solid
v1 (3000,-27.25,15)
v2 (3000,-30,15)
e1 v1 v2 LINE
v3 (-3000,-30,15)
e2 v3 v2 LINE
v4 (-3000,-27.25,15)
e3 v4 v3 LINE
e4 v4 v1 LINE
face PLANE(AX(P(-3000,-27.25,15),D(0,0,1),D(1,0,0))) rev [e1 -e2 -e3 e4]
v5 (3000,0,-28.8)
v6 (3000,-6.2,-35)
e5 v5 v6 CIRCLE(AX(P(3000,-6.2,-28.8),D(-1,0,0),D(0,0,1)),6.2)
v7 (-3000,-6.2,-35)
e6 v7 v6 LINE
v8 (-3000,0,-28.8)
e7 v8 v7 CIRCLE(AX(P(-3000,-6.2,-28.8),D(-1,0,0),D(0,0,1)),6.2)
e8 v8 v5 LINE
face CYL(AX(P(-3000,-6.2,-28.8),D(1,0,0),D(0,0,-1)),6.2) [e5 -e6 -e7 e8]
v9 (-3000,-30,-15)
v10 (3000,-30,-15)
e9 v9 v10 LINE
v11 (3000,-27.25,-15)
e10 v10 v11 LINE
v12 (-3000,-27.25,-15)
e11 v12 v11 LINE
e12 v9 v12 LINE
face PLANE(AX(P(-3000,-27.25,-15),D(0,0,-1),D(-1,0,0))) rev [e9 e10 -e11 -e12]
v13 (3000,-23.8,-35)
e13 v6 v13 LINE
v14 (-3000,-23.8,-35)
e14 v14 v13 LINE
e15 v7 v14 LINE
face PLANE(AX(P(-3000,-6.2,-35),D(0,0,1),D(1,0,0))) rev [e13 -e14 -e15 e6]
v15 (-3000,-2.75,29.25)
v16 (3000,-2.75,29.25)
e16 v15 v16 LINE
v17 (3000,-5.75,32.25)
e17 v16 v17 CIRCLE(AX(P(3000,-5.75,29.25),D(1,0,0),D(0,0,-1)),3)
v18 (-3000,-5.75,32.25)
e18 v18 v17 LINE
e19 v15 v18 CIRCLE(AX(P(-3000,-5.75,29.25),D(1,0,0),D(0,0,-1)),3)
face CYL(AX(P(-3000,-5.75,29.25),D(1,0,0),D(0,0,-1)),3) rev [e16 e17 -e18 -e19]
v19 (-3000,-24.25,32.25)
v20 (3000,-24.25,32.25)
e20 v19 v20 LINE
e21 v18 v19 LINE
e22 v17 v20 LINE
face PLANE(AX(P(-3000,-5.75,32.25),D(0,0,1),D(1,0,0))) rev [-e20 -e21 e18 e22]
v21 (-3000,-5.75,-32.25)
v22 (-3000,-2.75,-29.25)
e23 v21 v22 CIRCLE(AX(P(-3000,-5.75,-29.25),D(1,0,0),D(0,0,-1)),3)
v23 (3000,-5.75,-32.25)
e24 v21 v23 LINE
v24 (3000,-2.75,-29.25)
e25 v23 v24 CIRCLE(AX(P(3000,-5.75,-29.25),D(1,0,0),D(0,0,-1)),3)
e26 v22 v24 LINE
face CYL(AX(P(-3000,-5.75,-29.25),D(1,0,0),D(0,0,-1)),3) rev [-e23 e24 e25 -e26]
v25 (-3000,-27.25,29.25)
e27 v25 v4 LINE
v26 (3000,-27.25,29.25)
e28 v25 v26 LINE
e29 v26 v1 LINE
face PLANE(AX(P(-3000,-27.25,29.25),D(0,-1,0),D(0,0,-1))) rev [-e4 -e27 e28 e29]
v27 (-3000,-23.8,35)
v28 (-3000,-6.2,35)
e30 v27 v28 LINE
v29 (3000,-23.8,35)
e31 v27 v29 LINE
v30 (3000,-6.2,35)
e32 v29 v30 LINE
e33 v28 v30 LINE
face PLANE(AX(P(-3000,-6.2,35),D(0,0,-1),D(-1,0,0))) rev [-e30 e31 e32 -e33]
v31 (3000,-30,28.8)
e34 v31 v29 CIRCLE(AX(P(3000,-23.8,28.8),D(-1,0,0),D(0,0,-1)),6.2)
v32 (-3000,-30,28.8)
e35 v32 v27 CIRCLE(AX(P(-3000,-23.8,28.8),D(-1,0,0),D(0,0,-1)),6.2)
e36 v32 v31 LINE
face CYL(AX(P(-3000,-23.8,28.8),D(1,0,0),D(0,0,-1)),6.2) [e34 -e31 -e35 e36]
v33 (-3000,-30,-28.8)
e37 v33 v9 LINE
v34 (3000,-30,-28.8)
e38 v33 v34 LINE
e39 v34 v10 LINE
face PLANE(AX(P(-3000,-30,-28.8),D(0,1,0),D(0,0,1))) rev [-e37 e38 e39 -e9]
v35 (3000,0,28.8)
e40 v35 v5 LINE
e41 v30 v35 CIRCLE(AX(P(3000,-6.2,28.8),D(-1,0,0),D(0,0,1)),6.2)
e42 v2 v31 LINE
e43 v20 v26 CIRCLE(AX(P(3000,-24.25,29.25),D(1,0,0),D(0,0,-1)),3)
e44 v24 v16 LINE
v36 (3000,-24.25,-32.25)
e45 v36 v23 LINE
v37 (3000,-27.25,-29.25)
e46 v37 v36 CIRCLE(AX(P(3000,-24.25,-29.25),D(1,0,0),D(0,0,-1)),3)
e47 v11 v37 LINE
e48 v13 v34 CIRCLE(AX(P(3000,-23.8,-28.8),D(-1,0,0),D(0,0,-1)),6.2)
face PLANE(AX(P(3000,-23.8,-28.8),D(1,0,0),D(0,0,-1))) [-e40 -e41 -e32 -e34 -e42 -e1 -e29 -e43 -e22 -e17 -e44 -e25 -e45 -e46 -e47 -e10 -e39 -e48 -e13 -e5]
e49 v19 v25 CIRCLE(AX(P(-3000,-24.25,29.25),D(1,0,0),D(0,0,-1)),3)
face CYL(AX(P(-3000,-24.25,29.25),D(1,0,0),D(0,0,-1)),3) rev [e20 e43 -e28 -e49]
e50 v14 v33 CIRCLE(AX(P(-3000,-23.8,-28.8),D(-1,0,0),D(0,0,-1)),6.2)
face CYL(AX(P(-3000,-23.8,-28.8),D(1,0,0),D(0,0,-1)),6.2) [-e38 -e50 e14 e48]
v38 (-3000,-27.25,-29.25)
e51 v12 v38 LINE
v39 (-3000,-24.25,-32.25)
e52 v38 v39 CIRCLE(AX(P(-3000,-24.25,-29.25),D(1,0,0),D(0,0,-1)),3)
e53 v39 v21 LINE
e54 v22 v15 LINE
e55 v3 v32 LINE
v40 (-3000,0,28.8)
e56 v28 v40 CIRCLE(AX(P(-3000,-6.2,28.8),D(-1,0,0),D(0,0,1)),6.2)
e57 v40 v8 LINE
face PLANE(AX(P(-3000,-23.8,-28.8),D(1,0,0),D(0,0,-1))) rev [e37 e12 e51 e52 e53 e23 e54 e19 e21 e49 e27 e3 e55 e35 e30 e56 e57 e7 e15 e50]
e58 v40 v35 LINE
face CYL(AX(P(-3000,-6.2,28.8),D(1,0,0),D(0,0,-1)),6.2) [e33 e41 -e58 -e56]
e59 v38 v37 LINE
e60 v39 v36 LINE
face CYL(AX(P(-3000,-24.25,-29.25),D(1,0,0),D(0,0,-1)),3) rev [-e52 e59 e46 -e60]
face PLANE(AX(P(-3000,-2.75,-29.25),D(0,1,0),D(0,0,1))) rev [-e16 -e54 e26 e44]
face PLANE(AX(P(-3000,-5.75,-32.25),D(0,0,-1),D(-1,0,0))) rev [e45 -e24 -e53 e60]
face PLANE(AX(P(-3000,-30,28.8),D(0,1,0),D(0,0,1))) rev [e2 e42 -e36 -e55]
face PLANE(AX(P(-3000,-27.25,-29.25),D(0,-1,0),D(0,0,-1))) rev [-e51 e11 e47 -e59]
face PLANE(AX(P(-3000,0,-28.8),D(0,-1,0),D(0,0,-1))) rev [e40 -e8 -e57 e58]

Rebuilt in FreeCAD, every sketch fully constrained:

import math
import FreeCAD as App
import Part
import Sketcher

doc = App.newDocument("Part")
params = doc.addObject("Spreadsheet::Sheet", "Params")
for row, (alias, value) in enumerate([
    ("sketch1_radius", "3 mm"),
    ("sketch1_radius2", "6.2 mm"),
    ("sketch1_width", "17.6 mm"),
    ("sketch1_width2", "18.5 mm"),
    ("sketch1_height", "57.6 mm"),
    ("pad1_length", "6000 mm"),
], start=1):
    params.set(f"A{row}", alias)
    params.set(f"B{row}", "=" + value)
    params.setAlias(f"B{row}", alias)

body = doc.addObject("PartDesign::Body", "Body")

# Sketch on YZ plane
sketch1 = body.newObject("Sketcher::SketchObject", "Sketch")
sketch1.AttachmentSupport = (doc.getObject("YZ_Plane"), [""])
sketch1.MapMode = "FlatFace"
sketch1.AttachmentOffset = App.Placement(App.Vector(0, 0, 3000), App.Rotation())
sketch1.addGeometry(Part.LineSegment(App.Vector(0, 28.8, 0), App.Vector(0, -28.8, 0)), False)
sketch1.addGeometry(Part.ArcOfCircle(Part.Circle(App.Vector(-6.2, -28.8, 0), App.Vector(0, 0, 1), 6.2), math.radians(-90), math.radians(0)), False)
sketch1.addGeometry(Part.LineSegment(App.Vector(-6.2, -35, 0), App.Vector(-23.8, -35, 0)), False)
sketch1.addGeometry(Part.ArcOfCircle(Part.Circle(App.Vector(-23.8, -28.8, 0), App.Vector(0, 0, 1), 6.2), math.radians(-180), math.radians(-90)), False)
sketch1.addGeometry(Part.LineSegment(App.Vector(-30, -28.8, 0), App.Vector(-30, -15, 0)), False)
sketch1.addGeometry(Part.LineSegment(App.Vector(-30, -15, 0), App.Vector(-27.2, -15, 0)), False)
sketch1.addGeometry(Part.LineSegment(App.Vector(-27.2, -15, 0), App.Vector(-27.2, -29.2, 0)), False)
sketch1.addGeometry(Part.ArcOfCircle(Part.Circle(App.Vector(-24.3, -29.3, 0), App.Vector(0, 0, 1), 3), math.radians(180), math.radians(270)), False)
sketch1.addGeometry(Part.LineSegment(App.Vector(-24.2, -32.2, 0), App.Vector(-5.8, -32.2, 0)), False)
sketch1.addGeometry(Part.ArcOfCircle(Part.Circle(App.Vector(-5.7, -29.3, 0), App.Vector(0, 0, 1), 3), math.radians(-90), math.radians(0)), False)
sketch1.addGeometry(Part.LineSegment(App.Vector(-2.8, -29.2, 0), App.Vector(-2.8, 29.2, 0)), False)
sketch1.addGeometry(Part.ArcOfCircle(Part.Circle(App.Vector(-5.7, 29.3, 0), App.Vector(0, 0, 1), 3), math.radians(0), math.radians(90)), False)
sketch1.addGeometry(Part.LineSegment(App.Vector(-5.8, 32.2, 0), App.Vector(-24.2, 32.2, 0)), False)
sketch1.addGeometry(Part.ArcOfCircle(Part.Circle(App.Vector(-24.3, 29.3, 0), App.Vector(0, 0, 1), 3), math.radians(90), math.radians(180)), False)
sketch1.addGeometry(Part.LineSegment(App.Vector(-27.2, 29.2, 0), App.Vector(-27.2, 15, 0)), False)
sketch1.addGeometry(Part.LineSegment(App.Vector(-27.2, 15, 0), App.Vector(-30, 15, 0)), False)
sketch1.addGeometry(Part.LineSegment(App.Vector(-30, 15, 0), App.Vector(-30, 28.8, 0)), False)
sketch1.addGeometry(Part.ArcOfCircle(Part.Circle(App.Vector(-23.8, 28.8, 0), App.Vector(0, 0, 1), 6.2), math.radians(90), math.radians(180)), False)
sketch1.addGeometry(Part.LineSegment(App.Vector(-23.8, 35, 0), App.Vector(-6.2, 35, 0)), False)
sketch1.addGeometry(Part.ArcOfCircle(Part.Circle(App.Vector(-6.2, 28.8, 0), App.Vector(0, 0, 1), 6.2), math.radians(0), math.radians(90)), False)
sketch1.addConstraint(Sketcher.Constraint("Tangent", 0, 2, 1, 2))
sketch1.addConstraint(Sketcher.Constraint("Tangent", 1, 1, 2, 1))
sketch1.addConstraint(Sketcher.Constraint("Tangent", 2, 2, 3, 2))
sketch1.addConstraint(Sketcher.Constraint("Tangent", 3, 1, 4, 1))
sketch1.addConstraint(Sketcher.Constraint("Coincident", 4, 2, 5, 1))
sketch1.addConstraint(Sketcher.Constraint("Coincident", 5, 2, 6, 1))
sketch1.addConstraint(Sketcher.Constraint("Tangent", 6, 2, 7, 1))
sketch1.addConstraint(Sketcher.Constraint("Tangent", 7, 2, 8, 1))
sketch1.addConstraint(Sketcher.Constraint("Tangent", 8, 2, 9, 1))
sketch1.addConstraint(Sketcher.Constraint("Tangent", 9, 2, 10, 1))
sketch1.addConstraint(Sketcher.Constraint("Tangent", 10, 2, 11, 1))
sketch1.addConstraint(Sketcher.Constraint("Tangent", 11, 2, 12, 1))
sketch1.addConstraint(Sketcher.Constraint("Tangent", 12, 2, 13, 1))
sketch1.addConstraint(Sketcher.Constraint("Tangent", 13, 2, 14, 1))
sketch1.addConstraint(Sketcher.Constraint("Coincident", 14, 2, 15, 1))
sketch1.addConstraint(Sketcher.Constraint("Coincident", 15, 2, 16, 1))
sketch1.addConstraint(Sketcher.Constraint("Tangent", 16, 2, 17, 2))
sketch1.addConstraint(Sketcher.Constraint("Tangent", 17, 1, 18, 1))
sketch1.addConstraint(Sketcher.Constraint("Tangent", 18, 2, 19, 2))
sketch1.addConstraint(Sketcher.Constraint("Tangent", 19, 1, 0, 1))
sketch1.addConstraint(Sketcher.Constraint("Vertical", 0))
sketch1.addConstraint(Sketcher.Constraint("Horizontal", 2))
sketch1.addConstraint(Sketcher.Constraint("Vertical", 4))
sketch1.addConstraint(Sketcher.Constraint("Horizontal", 5))
sketch1.addConstraint(Sketcher.Constraint("Vertical", 6))
sketch1.addConstraint(Sketcher.Constraint("Horizontal", 8))
sketch1.addConstraint(Sketcher.Constraint("Vertical", 10))
sketch1.addConstraint(Sketcher.Constraint("Horizontal", 12))
sketch1.addConstraint(Sketcher.Constraint("Vertical", 14))
sketch1.addConstraint(Sketcher.Constraint("Horizontal", 15))
sketch1.addConstraint(Sketcher.Constraint("Vertical", 16))
sketch1.addConstraint(Sketcher.Constraint("Horizontal", 18))
sketch1.addConstraint(Sketcher.Constraint("Equal", 1, 3))
sketch1.addConstraint(Sketcher.Constraint("Equal", 7, 9))
sketch1.addConstraint(Sketcher.Constraint("Equal", 9, 11))
sketch1.addConstraint(Sketcher.Constraint("Equal", 11, 13))
sketch1.addConstraint(Sketcher.Constraint("Equal", 3, 17))
sketch1.addConstraint(Sketcher.Constraint("Equal", 17, 19))
sketch1.addConstraint(Sketcher.Constraint("Symmetric", 0, 2, 19, 1, -1, 1))
sketch1.addConstraint(Sketcher.Constraint("Symmetric", 7, 3, 13, 3, -1))
sketch1.addConstraint(Sketcher.Constraint("Symmetric", 4, 2, 15, 2, -1))
sketch1.addConstraint(Sketcher.Constraint("Radius", 7, 3.0))
sketch1.addConstraint(Sketcher.Constraint("Radius", 1, 6.2))
sketch1.addConstraint(Sketcher.Constraint("DistanceX", 2, 2, 2, 1, 17.6))
sketch1.addConstraint(Sketcher.Constraint("DistanceX", 8, 1, 8, 2, 18.5))
sketch1.addConstraint(Sketcher.Constraint("DistanceY", 0, 2, 0, 1, 57.6))
sketch1.addConstraint(Sketcher.Constraint("DistanceY", 4, 1, 4, 2, 13.8))
sketch1.addConstraint(Sketcher.Constraint("DistanceY", 10, 1, 10, 2, 58.5))
sketch1.addConstraint(Sketcher.Constraint("DistanceX", 5, 1, 5, 2, 2.75))
sketch1.setExpression("Constraints[41]", "Params.sketch1_radius")
sketch1.setExpression("Constraints[42]", "Params.sketch1_radius2")
sketch1.setExpression("Constraints[43]", "Params.sketch1_width")
sketch1.setExpression("Constraints[44]", "Params.sketch1_width2")
sketch1.setExpression("Constraints[45]", "Params.sketch1_height")
pad1 = body.newObject("PartDesign::Pad", "Pad")
pad1.Profile = sketch1
pad1.setExpression("Length", "Params.pad1_length")
pad1.Reversed = True

doc.recompute()
